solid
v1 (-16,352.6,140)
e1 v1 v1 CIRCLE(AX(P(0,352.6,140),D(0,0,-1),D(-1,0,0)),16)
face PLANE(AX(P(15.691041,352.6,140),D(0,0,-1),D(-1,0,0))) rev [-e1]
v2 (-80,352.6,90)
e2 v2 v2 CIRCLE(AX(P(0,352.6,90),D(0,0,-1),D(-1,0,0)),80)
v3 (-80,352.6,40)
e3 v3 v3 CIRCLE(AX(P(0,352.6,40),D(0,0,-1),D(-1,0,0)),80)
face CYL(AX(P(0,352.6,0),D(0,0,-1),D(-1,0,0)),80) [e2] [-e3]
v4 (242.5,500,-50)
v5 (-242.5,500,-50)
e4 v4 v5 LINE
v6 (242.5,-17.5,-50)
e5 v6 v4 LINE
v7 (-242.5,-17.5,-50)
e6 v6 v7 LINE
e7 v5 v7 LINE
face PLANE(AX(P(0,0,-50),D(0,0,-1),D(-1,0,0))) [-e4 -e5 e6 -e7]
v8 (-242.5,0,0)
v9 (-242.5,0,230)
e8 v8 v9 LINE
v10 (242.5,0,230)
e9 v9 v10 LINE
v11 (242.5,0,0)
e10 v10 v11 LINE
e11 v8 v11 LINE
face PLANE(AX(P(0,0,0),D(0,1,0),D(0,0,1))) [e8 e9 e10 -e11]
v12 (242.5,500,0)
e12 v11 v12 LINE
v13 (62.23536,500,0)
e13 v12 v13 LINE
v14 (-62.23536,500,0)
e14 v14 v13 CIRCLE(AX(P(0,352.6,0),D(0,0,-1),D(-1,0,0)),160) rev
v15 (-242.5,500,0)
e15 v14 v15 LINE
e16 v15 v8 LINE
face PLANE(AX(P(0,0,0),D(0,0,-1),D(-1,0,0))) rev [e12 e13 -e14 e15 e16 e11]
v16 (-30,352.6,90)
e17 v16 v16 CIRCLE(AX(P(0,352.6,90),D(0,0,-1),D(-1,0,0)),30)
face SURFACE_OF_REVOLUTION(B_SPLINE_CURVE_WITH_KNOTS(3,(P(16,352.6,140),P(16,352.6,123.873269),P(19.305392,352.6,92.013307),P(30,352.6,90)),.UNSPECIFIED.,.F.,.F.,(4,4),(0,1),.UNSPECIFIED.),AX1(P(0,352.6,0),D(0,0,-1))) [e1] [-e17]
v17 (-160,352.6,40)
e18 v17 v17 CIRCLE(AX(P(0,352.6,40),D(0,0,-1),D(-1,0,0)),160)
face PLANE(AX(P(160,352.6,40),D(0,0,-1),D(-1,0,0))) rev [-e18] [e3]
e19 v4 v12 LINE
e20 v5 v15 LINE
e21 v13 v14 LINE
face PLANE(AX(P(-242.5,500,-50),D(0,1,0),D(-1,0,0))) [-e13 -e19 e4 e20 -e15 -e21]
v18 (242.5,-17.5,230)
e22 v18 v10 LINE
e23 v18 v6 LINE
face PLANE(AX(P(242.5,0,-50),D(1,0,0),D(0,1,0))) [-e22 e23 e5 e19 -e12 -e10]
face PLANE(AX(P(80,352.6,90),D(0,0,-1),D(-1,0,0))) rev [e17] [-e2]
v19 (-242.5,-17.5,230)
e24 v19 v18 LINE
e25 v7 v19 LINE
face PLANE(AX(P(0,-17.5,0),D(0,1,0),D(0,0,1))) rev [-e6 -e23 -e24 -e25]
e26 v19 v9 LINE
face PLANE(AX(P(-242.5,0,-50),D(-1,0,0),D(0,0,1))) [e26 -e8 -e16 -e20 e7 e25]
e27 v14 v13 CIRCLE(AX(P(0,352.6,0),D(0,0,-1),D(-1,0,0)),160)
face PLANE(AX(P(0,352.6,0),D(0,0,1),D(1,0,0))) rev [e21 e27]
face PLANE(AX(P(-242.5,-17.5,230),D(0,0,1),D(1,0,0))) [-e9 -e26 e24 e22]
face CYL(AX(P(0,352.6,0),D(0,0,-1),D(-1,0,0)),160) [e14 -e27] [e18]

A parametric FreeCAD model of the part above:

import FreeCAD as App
import Part
import Sketcher
from FreeCAD import Vector


def add_polygon(sketch, points):
    """Adds a closed chain of lines whose ends are joined by coincident constraints."""
    first, n = sketch.GeometryCount, len(points)
    for a, b in zip(points, points[1:] + points[:1]):
        sketch.addGeometry(Part.LineSegment(App.Vector(*a, 0), App.Vector(*b, 0)), False)
    for i in range(n):
        sketch.addConstraint(Sketcher.Constraint("Coincident", first + i, 2, first + (i + 1) % n, 1))

doc = App.newDocument("Part")
body = doc.addObject("PartDesign::Body", "Body")

sketch1 = body.newObject("Sketcher::SketchObject", "Sketch")
sketch1.AttachmentSupport = (doc.getObject("XY_Plane"), [""])
sketch1.MapMode = "FlatFace"
add_polygon(sketch1, [(-242, 500), (-242, 0), (242, 0), (242, 500)])
sketch1.addConstraint(Sketcher.Constraint("Vertical", 0))
sketch1.addConstraint(Sketcher.Constraint("Horizontal", 1))
sketch1.addConstraint(Sketcher.Constraint("Vertical", 2))
sketch1.addConstraint(Sketcher.Constraint("Horizontal", 3))
sketch1.addConstraint(Sketcher.Constraint("Symmetric", 0, 2, 1, 2, -1, 1))
sketch1.addConstraint(Sketcher.Constraint("DistanceX", 1, 1, 1, 2, 485.0))
sketch1.addConstraint(Sketcher.Constraint("DistanceY", 0, 2, 0, 1, 500.0))
pad1 = body.newObject("PartDesign::Pad", "Pad")
pad1.Profile = sketch1
pad1.Length = 50
pad1.Reversed = True

sketch2 = body.newObject("Sketcher::SketchObject", "Sketch001")
sketch2.AttachmentSupport = (doc.getObject("XZ_Plane"), [""])
sketch2.MapMode = "FlatFace"
add_polygon(sketch2, [(-242, -50), (-242, 230), (242, 230), (242, -50)])
sketch2.addConstraint(Sketcher.Constraint("Vertical", 0))
sketch2.addConstraint(Sketcher.Constraint("Horizontal", 1))
sketch2.addConstraint(Sketcher.Constraint("Vertical", 2))
sketch2.addConstraint(Sketcher.Constraint("Horizontal", 3))
sketch2.addConstraint(Sketcher.Constraint("DistanceX", 1, 1, 1, 2, 485.0))
sketch2.addConstraint(Sketcher.Constraint("DistanceY", 0, 1, 0, 2, 280.0))
sketch2.addConstraint(Sketcher.Constraint("DistanceY", -1, 1, 0, 2, 230.0))
sketch2.addConstraint(Sketcher.Constraint("DistanceX", 0, 2, -1, 1, 242.5))
pad2 = body.newObject("PartDesign::Pad", "Pad001")
pad2.Profile = sketch2
pad2.Length = 17.5

sketch3 = body.newObject("Sketcher::SketchObject", "Sketch002")
sketch3.AttachmentSupport = (doc.getObject("XZ_Plane"), [""])
sketch3.MapMode = "FlatFace"
sketch3.AttachmentOffset = App.Placement(Vector(0, 0, -352.6), App.Rotation())
sketch3.addGeometry(Part.LineSegment(Vector(160, 0, 0), Vector(0, 0, 0)), False)
sketch3.addGeometry(Part.LineSegment(Vector(0, 0, 0), Vector(0, 140, 0)), False)
sketch3.addGeometry(Part.LineSegment(Vector(0, 140, 0), Vector(16, 140, 0)), False)
sketch3.addGeometry(Part.BSplineCurve([Vector(30, 90, 0), Vector(19.305392, 92.013307, 0), Vector(16, 123.873269, 0), Vector(16, 140, 0)], [4, 4], [0, 1], False, 3, [1, 1, 1, 1], False), False)
sketch3.addGeometry(Part.LineSegment(Vector(30, 90, 0), Vector(80, 90, 0)), False)
sketch3.addGeometry(Part.LineSegment(Vector(80, 90, 0), Vector(80, 40, 0)), False)
sketch3.addGeometry(Part.LineSegment(Vector(80, 40, 0), Vector(160, 40, 0)), False)
sketch3.addGeometry(Part.LineSegment(Vector(160, 40, 0), Vector(160, 0, 0)), False)
sketch3.addConstraint(Sketcher.Constraint("Block", 3))
sketch3.addConstraint(Sketcher.Constraint("Coincident", 0, 2, 1, 1))
sketch3.addConstraint(Sketcher.Constraint("Coincident", 1, 2, 2, 1))
sketch3.addConstraint(Sketcher.Constraint("Coincident", 2, 2, 3, 2))
sketch3.addConstraint(Sketcher.Constraint("Coincident", 3, 1, 4, 1))
sketch3.addConstraint(Sketcher.Constraint("Coincident", 4, 2, 5, 1))
sketch3.addConstraint(Sketcher.Constraint("Coincident", 5, 2, 6, 1))
sketch3.addConstraint(Sketcher.Constraint("Coincident", 6, 2, 7, 1))
sketch3.addConstraint(Sketcher.Constraint("Coincident", 7, 2, 0, 1))
sketch3.addConstraint(Sketcher.Constraint("Horizontal", 0))
sketch3.addConstraint(Sketcher.Constraint("Vertical", 1))
sketch3.addConstraint(Sketcher.Constraint("Horizontal", 2))
sketch3.addConstraint(Sketcher.Constraint("Horizontal", 4))
sketch3.addConstraint(Sketcher.Constraint("Vertical", 5))
sketch3.addConstraint(Sketcher.Constraint("Horizontal", 6))
sketch3.addConstraint(Sketcher.Constraint("Vertical", 7))
sketch3.addConstraint(Sketcher.Constraint("Coincident", 0, 2, -1, 1))
sketch3.addConstraint(Sketcher.Constraint("Equal", 4, 5))
sketch3.addConstraint(Sketcher.Constraint("DistanceX", 0, 2, 0, 1, 160.0))
sketch3.addConstraint(Sketcher.Constraint("DistanceX", 4, 1, 4, 2, 50.0))
revolution = body.newObject("PartDesign::Revolution", "Revolution")
revolution.Profile = sketch3
revolution.ReferenceAxis = (sketch3, ["V_Axis"])
revolution.Angle = 360

doc.recompute()
